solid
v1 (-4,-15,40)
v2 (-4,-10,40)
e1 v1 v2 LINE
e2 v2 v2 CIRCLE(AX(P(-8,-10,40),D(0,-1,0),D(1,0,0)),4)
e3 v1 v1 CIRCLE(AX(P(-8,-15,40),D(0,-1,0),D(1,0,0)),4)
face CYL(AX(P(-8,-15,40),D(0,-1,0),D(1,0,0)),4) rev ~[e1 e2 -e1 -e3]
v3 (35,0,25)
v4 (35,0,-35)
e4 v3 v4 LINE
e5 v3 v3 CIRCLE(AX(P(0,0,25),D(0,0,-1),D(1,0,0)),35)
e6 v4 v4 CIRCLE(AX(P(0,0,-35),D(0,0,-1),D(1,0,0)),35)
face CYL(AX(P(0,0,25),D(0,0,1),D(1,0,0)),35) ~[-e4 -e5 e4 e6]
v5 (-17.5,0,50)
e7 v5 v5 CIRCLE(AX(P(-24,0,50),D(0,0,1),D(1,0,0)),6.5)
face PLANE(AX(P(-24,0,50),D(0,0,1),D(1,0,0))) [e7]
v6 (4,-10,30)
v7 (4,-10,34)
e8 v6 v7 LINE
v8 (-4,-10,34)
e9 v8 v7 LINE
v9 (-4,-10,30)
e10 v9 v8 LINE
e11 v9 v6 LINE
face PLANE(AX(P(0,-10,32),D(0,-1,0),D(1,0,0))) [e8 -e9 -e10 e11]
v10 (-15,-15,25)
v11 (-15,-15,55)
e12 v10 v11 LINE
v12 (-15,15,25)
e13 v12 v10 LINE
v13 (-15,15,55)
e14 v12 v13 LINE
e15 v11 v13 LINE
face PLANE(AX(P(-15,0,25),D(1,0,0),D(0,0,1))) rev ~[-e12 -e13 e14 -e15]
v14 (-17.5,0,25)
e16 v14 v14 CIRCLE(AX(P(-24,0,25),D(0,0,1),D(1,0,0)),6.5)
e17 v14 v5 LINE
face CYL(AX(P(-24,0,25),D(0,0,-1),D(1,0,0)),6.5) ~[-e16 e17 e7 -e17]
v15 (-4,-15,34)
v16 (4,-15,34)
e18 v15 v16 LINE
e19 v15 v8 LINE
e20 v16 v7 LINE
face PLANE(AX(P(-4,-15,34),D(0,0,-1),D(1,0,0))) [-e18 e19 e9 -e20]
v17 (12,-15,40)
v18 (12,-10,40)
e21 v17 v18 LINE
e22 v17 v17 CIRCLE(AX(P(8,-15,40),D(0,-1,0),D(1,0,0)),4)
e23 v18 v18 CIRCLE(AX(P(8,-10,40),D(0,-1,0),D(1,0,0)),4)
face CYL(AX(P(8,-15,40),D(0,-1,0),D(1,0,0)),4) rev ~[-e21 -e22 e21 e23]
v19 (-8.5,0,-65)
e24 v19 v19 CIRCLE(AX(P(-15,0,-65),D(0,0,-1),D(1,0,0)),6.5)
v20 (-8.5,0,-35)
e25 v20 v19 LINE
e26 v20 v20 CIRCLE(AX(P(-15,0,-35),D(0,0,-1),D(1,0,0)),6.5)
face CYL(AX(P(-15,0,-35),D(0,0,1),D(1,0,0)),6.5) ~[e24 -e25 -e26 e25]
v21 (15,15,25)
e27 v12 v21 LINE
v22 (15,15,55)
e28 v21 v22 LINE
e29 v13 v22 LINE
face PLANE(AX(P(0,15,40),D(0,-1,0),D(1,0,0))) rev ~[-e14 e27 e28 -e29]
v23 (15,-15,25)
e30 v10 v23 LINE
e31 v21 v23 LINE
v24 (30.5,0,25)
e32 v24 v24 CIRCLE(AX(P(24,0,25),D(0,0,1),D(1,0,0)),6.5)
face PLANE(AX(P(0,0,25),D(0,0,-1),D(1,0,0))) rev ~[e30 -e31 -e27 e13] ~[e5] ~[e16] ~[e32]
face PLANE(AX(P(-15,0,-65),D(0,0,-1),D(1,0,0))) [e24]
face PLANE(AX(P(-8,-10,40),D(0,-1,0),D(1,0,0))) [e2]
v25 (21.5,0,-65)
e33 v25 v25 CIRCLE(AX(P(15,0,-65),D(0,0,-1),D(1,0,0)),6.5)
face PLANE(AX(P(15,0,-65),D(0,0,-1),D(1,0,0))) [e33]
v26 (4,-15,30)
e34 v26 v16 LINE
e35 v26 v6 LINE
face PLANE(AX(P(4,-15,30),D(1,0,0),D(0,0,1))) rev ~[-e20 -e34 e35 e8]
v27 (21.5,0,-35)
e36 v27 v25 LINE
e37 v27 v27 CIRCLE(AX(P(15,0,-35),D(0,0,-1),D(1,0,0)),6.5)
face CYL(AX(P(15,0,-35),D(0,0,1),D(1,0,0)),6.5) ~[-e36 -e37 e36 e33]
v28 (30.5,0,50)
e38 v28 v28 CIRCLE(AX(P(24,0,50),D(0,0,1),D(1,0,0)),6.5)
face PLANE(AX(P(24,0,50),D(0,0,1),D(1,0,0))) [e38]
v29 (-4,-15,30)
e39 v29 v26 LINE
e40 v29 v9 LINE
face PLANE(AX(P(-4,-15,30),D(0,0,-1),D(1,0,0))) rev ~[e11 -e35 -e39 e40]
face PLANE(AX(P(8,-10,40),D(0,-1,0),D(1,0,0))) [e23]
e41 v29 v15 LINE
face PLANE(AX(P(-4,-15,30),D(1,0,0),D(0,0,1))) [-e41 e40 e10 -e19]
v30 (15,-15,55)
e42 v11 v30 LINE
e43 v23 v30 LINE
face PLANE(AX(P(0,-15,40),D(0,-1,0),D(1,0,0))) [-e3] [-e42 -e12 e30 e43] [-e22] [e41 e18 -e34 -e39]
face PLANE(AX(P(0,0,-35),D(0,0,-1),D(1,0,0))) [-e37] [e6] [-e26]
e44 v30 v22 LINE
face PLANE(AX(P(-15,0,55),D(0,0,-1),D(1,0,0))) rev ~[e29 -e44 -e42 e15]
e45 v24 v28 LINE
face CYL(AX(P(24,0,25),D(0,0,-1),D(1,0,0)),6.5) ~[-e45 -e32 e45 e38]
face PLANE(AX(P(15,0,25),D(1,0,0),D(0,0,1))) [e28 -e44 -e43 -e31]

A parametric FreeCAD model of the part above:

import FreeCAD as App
import Part
import Sketcher
from FreeCAD import Vector
Q = App.Units.Quantity


def add_polygon(sketch, points):
    """Adds a closed chain of lines whose ends are joined by coincident constraints."""
    first, n = sketch.GeometryCount, len(points)
    for a, b in zip(points, points[1:] + points[:1]):
        sketch.addGeometry(Part.LineSegment(App.Vector(*a, 0), App.Vector(*b, 0)), False)
    for i in range(n):
        sketch.addConstraint(Sketcher.Constraint("Coincident", first + i, 2, first + (i + 1) % n, 1))

doc = App.newDocument("Part")
body = doc.addObject("PartDesign::Body", "Body")

# Sketch on XZ plane
sketch1 = doc.addObject("Sketcher::SketchObject", "Sketch")
body.addObject(sketch1)
sketch1.AttachmentSupport = (doc.XZ_Plane, [""])
sketch1.MapMode = "FlatFace"
add_polygon(sketch1, [(-15, 55), (-15, 25), (15, 25), (15, 55)])  # lines 0-3
sketch1.addConstraint([
    Sketcher.Constraint("Vertical", 0),
    Sketcher.Constraint("Horizontal", 1),
    Sketcher.Constraint("Vertical", 2),
    Sketcher.Constraint("Horizontal", 3),
    Sketcher.Constraint("Equal", 3, 0),
    Sketcher.Constraint("DistanceX", 1, 1, 1, 2, Q("30 mm")),
    Sketcher.Constraint("DistanceX", 0, 2, -1, 1, Q("15 mm")),
    Sketcher.Constraint("DistanceY", -1, 1, 0, 2, Q("25 mm")),
])
pad1 = doc.addObject("PartDesign::Pad", "Pad")
body.addObject(pad1)
pad1.Profile = sketch1
pad1.Length = 30
pad1.Midplane = True

# Sketch on XY plane
sketch2 = doc.addObject("Sketcher::SketchObject", "Sketch001")
body.addObject(sketch2)
sketch2.AttachmentSupport = (doc.XY_Plane, [""])
sketch2.MapMode = "FlatFace"
sketch2.AttachmentOffset = App.Placement(Vector(0, 0, 25), App.Rotation())
sketch2.addGeometry(Part.Circle(Vector(0, 0, 0), Vector(0, 0, 1), 35), False)
sketch2.addConstraint([
    Sketcher.Constraint("Coincident", 0, 3, -1, 1),
    Sketcher.Constraint("Diameter", 0, Q("70 mm")),
])
pad2 = doc.addObject("PartDesign::Pad", "Pad001")
body.addObject(pad2)
pad2.Profile = sketch2
pad2.Length = 60
pad2.Reversed = True

# Sketch on XY plane
sketch3 = doc.addObject("Sketcher::SketchObject", "Sketch002")
body.addObject(sketch3)
sketch3.AttachmentSupport = (doc.XY_Plane, [""])
sketch3.MapMode = "FlatFace"
sketch3.AttachmentOffset = App.Placement(Vector(0, 0, -35), App.Rotation())
sketch3.addGeometry([
    Part.Circle(Vector(-15, 0, 0), Vector(0, 0, 1), 6),
    Part.Circle(Vector(15, 0, 0), Vector(0, 0, 1), 6),
], False)
sketch3.addConstraint([
    Sketcher.Constraint("Equal", 0, 1),
    Sketcher.Constraint("Symmetric", 0, 3, 1, 3, -1, 1),
    Sketcher.Constraint("PointOnObject", 0, 3, -1),
    Sketcher.Constraint("Diameter", 0, Q("13 mm")),
    Sketcher.Constraint("DistanceX", 0, 3, -1, 1, Q("15 mm")),
])
pad3 = doc.addObject("PartDesign::Pad", "Pad002")
body.addObject(pad3)
pad3.Profile = sketch3
pad3.Length = 30
pad3.Reversed = True

# Sketch on XZ plane
sketch4 = doc.addObject("Sketcher::SketchObject", "Sketch003")
body.addObject(sketch4)
sketch4.AttachmentSupport = (doc.XZ_Plane, [""])
sketch4.MapMode = "FlatFace"
sketch4.AttachmentOffset = App.Placement(Vector(0, 0, 15), App.Rotation())
sketch4.addGeometry(Part.Circle(Vector(-8, 40, 0), Vector(0, 0, 1), 4), False)  # 0
sketch4.addGeometry(Part.Circle(Vector(8, 40, 0), Vector(0, 0, 1), 4), False)  # 1
add_polygon(sketch4, [(-4, 34), (-4, 30), (4, 30), (4, 34)])  # lines 2-5
sketch4.addConstraint([
    Sketcher.Constraint("Vertical", 2),
    Sketcher.Constraint("Horizontal", 3),
    Sketcher.Constraint("Vertical", 4),
    Sketcher.Constraint("Horizontal", 5),
    Sketcher.Constraint("Equal", 0, 1),
    Sketcher.Constraint("Symmetric", 0, 3, 1, 3, -2),
    Sketcher.Constraint("Diameter", 0, Q("8 mm")),
    Sketcher.Constraint("DistanceX", 3, 1, 3, 2, Q("8 mm")),
    Sketcher.Constraint("DistanceY", 2, 2, 2, 1, Q("4 mm")),
    Sketcher.Constraint("DistanceX", 0, 3, -1, 1, Q("8 mm")),
    Sketcher.Constraint("DistanceY", -1, 1, 0, 3, Q("40 mm")),
    Sketcher.Constraint("DistanceX", 2, 2, -1, 1, Q("4 mm")),
    Sketcher.Constraint("DistanceY", -1, 1, 2, 2, Q("30 mm")),
])
pocket1 = doc.addObject("PartDesign::Pocket", "Pocket")
body.addObject(pocket1)
pocket1.Profile = sketch4
pocket1.Length = 5

# Sketch on XY plane
sketch5 = doc.addObject("Sketcher::SketchObject", "Sketch004")
body.addObject(sketch5)
sketch5.AttachmentSupport = (doc.XY_Plane, [""])
sketch5.MapMode = "FlatFace"
sketch5.AttachmentOffset = App.Placement(Vector(0, 0, 25), App.Rotation())
sketch5.addGeometry([
    Part.Circle(Vector(-24, 0, 0), Vector(0, 0, 1), 6),
    Part.Circle(Vector(24, 0, 0), Vector(0, 0, 1), 6),
], False)
sketch5.addConstraint([
    Sketcher.Constraint("Equal", 0, 1),
    Sketcher.Constraint("Symmetric", 0, 3, 1, 3, -1, 1),
    Sketcher.Constraint("PointOnObject", 0, 3, -1),
    Sketcher.Constraint("Diameter", 0, Q("13 mm")),
    Sketcher.Constraint("DistanceX", 0, 3, -1, 1, Q("24 mm")),
])
pad4 = doc.addObject("PartDesign::Pad", "Pad003")
body.addObject(pad4)
pad4.Profile = sketch5
pad4.Length = 25

doc.recompute()
